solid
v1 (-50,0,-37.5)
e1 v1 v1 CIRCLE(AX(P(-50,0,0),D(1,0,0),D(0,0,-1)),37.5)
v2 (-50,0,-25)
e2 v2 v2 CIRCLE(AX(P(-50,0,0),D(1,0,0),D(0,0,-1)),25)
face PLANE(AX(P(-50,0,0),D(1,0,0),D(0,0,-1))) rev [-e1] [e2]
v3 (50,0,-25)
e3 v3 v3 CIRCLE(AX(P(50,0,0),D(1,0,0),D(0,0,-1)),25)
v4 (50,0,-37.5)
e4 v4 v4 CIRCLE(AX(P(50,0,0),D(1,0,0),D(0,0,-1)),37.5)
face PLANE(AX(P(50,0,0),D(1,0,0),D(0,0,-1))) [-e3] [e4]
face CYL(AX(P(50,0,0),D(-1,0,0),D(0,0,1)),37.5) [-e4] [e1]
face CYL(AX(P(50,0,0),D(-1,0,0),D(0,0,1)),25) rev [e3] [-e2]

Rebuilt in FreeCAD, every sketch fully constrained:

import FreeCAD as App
import Part
import Sketcher
Q = App.Units.Quantity

doc = App.newDocument("Part")
body = doc.addObject("PartDesign::Body", "Body")

# Sketch on YZ plane
sketch1 = body.newObject("Sketcher::SketchObject", "Sketch")
sketch1.AttachmentSupport = (doc.getObject("YZ_Plane"), [""])
sketch1.MapMode = "FlatFace"
sketch1.addGeometry(Part.Circle(App.Vector(0, 0, 0), App.Vector(0, 0, 1), 38), False)
sketch1.addGeometry(Part.Circle(App.Vector(0, 0, 0), App.Vector(0, 0, 1), 25), False)
sketch1.addConstraint(Sketcher.Constraint("Coincident", 0, 3, -1, 1))
sketch1.addConstraint(Sketcher.Constraint("Coincident", 1, 3, -1, 1))
sketch1.addConstraint(Sketcher.Constraint("Diameter", 0, Q("75 mm")))
sketch1.addConstraint(Sketcher.Constraint("Diameter", 1, Q("50 mm")))
pad1 = body.newObject("PartDesign::Pad", "Pad")
pad1.Profile = sketch1
pad1.Length = 100
pad1.Midplane = True

doc.recompute()
